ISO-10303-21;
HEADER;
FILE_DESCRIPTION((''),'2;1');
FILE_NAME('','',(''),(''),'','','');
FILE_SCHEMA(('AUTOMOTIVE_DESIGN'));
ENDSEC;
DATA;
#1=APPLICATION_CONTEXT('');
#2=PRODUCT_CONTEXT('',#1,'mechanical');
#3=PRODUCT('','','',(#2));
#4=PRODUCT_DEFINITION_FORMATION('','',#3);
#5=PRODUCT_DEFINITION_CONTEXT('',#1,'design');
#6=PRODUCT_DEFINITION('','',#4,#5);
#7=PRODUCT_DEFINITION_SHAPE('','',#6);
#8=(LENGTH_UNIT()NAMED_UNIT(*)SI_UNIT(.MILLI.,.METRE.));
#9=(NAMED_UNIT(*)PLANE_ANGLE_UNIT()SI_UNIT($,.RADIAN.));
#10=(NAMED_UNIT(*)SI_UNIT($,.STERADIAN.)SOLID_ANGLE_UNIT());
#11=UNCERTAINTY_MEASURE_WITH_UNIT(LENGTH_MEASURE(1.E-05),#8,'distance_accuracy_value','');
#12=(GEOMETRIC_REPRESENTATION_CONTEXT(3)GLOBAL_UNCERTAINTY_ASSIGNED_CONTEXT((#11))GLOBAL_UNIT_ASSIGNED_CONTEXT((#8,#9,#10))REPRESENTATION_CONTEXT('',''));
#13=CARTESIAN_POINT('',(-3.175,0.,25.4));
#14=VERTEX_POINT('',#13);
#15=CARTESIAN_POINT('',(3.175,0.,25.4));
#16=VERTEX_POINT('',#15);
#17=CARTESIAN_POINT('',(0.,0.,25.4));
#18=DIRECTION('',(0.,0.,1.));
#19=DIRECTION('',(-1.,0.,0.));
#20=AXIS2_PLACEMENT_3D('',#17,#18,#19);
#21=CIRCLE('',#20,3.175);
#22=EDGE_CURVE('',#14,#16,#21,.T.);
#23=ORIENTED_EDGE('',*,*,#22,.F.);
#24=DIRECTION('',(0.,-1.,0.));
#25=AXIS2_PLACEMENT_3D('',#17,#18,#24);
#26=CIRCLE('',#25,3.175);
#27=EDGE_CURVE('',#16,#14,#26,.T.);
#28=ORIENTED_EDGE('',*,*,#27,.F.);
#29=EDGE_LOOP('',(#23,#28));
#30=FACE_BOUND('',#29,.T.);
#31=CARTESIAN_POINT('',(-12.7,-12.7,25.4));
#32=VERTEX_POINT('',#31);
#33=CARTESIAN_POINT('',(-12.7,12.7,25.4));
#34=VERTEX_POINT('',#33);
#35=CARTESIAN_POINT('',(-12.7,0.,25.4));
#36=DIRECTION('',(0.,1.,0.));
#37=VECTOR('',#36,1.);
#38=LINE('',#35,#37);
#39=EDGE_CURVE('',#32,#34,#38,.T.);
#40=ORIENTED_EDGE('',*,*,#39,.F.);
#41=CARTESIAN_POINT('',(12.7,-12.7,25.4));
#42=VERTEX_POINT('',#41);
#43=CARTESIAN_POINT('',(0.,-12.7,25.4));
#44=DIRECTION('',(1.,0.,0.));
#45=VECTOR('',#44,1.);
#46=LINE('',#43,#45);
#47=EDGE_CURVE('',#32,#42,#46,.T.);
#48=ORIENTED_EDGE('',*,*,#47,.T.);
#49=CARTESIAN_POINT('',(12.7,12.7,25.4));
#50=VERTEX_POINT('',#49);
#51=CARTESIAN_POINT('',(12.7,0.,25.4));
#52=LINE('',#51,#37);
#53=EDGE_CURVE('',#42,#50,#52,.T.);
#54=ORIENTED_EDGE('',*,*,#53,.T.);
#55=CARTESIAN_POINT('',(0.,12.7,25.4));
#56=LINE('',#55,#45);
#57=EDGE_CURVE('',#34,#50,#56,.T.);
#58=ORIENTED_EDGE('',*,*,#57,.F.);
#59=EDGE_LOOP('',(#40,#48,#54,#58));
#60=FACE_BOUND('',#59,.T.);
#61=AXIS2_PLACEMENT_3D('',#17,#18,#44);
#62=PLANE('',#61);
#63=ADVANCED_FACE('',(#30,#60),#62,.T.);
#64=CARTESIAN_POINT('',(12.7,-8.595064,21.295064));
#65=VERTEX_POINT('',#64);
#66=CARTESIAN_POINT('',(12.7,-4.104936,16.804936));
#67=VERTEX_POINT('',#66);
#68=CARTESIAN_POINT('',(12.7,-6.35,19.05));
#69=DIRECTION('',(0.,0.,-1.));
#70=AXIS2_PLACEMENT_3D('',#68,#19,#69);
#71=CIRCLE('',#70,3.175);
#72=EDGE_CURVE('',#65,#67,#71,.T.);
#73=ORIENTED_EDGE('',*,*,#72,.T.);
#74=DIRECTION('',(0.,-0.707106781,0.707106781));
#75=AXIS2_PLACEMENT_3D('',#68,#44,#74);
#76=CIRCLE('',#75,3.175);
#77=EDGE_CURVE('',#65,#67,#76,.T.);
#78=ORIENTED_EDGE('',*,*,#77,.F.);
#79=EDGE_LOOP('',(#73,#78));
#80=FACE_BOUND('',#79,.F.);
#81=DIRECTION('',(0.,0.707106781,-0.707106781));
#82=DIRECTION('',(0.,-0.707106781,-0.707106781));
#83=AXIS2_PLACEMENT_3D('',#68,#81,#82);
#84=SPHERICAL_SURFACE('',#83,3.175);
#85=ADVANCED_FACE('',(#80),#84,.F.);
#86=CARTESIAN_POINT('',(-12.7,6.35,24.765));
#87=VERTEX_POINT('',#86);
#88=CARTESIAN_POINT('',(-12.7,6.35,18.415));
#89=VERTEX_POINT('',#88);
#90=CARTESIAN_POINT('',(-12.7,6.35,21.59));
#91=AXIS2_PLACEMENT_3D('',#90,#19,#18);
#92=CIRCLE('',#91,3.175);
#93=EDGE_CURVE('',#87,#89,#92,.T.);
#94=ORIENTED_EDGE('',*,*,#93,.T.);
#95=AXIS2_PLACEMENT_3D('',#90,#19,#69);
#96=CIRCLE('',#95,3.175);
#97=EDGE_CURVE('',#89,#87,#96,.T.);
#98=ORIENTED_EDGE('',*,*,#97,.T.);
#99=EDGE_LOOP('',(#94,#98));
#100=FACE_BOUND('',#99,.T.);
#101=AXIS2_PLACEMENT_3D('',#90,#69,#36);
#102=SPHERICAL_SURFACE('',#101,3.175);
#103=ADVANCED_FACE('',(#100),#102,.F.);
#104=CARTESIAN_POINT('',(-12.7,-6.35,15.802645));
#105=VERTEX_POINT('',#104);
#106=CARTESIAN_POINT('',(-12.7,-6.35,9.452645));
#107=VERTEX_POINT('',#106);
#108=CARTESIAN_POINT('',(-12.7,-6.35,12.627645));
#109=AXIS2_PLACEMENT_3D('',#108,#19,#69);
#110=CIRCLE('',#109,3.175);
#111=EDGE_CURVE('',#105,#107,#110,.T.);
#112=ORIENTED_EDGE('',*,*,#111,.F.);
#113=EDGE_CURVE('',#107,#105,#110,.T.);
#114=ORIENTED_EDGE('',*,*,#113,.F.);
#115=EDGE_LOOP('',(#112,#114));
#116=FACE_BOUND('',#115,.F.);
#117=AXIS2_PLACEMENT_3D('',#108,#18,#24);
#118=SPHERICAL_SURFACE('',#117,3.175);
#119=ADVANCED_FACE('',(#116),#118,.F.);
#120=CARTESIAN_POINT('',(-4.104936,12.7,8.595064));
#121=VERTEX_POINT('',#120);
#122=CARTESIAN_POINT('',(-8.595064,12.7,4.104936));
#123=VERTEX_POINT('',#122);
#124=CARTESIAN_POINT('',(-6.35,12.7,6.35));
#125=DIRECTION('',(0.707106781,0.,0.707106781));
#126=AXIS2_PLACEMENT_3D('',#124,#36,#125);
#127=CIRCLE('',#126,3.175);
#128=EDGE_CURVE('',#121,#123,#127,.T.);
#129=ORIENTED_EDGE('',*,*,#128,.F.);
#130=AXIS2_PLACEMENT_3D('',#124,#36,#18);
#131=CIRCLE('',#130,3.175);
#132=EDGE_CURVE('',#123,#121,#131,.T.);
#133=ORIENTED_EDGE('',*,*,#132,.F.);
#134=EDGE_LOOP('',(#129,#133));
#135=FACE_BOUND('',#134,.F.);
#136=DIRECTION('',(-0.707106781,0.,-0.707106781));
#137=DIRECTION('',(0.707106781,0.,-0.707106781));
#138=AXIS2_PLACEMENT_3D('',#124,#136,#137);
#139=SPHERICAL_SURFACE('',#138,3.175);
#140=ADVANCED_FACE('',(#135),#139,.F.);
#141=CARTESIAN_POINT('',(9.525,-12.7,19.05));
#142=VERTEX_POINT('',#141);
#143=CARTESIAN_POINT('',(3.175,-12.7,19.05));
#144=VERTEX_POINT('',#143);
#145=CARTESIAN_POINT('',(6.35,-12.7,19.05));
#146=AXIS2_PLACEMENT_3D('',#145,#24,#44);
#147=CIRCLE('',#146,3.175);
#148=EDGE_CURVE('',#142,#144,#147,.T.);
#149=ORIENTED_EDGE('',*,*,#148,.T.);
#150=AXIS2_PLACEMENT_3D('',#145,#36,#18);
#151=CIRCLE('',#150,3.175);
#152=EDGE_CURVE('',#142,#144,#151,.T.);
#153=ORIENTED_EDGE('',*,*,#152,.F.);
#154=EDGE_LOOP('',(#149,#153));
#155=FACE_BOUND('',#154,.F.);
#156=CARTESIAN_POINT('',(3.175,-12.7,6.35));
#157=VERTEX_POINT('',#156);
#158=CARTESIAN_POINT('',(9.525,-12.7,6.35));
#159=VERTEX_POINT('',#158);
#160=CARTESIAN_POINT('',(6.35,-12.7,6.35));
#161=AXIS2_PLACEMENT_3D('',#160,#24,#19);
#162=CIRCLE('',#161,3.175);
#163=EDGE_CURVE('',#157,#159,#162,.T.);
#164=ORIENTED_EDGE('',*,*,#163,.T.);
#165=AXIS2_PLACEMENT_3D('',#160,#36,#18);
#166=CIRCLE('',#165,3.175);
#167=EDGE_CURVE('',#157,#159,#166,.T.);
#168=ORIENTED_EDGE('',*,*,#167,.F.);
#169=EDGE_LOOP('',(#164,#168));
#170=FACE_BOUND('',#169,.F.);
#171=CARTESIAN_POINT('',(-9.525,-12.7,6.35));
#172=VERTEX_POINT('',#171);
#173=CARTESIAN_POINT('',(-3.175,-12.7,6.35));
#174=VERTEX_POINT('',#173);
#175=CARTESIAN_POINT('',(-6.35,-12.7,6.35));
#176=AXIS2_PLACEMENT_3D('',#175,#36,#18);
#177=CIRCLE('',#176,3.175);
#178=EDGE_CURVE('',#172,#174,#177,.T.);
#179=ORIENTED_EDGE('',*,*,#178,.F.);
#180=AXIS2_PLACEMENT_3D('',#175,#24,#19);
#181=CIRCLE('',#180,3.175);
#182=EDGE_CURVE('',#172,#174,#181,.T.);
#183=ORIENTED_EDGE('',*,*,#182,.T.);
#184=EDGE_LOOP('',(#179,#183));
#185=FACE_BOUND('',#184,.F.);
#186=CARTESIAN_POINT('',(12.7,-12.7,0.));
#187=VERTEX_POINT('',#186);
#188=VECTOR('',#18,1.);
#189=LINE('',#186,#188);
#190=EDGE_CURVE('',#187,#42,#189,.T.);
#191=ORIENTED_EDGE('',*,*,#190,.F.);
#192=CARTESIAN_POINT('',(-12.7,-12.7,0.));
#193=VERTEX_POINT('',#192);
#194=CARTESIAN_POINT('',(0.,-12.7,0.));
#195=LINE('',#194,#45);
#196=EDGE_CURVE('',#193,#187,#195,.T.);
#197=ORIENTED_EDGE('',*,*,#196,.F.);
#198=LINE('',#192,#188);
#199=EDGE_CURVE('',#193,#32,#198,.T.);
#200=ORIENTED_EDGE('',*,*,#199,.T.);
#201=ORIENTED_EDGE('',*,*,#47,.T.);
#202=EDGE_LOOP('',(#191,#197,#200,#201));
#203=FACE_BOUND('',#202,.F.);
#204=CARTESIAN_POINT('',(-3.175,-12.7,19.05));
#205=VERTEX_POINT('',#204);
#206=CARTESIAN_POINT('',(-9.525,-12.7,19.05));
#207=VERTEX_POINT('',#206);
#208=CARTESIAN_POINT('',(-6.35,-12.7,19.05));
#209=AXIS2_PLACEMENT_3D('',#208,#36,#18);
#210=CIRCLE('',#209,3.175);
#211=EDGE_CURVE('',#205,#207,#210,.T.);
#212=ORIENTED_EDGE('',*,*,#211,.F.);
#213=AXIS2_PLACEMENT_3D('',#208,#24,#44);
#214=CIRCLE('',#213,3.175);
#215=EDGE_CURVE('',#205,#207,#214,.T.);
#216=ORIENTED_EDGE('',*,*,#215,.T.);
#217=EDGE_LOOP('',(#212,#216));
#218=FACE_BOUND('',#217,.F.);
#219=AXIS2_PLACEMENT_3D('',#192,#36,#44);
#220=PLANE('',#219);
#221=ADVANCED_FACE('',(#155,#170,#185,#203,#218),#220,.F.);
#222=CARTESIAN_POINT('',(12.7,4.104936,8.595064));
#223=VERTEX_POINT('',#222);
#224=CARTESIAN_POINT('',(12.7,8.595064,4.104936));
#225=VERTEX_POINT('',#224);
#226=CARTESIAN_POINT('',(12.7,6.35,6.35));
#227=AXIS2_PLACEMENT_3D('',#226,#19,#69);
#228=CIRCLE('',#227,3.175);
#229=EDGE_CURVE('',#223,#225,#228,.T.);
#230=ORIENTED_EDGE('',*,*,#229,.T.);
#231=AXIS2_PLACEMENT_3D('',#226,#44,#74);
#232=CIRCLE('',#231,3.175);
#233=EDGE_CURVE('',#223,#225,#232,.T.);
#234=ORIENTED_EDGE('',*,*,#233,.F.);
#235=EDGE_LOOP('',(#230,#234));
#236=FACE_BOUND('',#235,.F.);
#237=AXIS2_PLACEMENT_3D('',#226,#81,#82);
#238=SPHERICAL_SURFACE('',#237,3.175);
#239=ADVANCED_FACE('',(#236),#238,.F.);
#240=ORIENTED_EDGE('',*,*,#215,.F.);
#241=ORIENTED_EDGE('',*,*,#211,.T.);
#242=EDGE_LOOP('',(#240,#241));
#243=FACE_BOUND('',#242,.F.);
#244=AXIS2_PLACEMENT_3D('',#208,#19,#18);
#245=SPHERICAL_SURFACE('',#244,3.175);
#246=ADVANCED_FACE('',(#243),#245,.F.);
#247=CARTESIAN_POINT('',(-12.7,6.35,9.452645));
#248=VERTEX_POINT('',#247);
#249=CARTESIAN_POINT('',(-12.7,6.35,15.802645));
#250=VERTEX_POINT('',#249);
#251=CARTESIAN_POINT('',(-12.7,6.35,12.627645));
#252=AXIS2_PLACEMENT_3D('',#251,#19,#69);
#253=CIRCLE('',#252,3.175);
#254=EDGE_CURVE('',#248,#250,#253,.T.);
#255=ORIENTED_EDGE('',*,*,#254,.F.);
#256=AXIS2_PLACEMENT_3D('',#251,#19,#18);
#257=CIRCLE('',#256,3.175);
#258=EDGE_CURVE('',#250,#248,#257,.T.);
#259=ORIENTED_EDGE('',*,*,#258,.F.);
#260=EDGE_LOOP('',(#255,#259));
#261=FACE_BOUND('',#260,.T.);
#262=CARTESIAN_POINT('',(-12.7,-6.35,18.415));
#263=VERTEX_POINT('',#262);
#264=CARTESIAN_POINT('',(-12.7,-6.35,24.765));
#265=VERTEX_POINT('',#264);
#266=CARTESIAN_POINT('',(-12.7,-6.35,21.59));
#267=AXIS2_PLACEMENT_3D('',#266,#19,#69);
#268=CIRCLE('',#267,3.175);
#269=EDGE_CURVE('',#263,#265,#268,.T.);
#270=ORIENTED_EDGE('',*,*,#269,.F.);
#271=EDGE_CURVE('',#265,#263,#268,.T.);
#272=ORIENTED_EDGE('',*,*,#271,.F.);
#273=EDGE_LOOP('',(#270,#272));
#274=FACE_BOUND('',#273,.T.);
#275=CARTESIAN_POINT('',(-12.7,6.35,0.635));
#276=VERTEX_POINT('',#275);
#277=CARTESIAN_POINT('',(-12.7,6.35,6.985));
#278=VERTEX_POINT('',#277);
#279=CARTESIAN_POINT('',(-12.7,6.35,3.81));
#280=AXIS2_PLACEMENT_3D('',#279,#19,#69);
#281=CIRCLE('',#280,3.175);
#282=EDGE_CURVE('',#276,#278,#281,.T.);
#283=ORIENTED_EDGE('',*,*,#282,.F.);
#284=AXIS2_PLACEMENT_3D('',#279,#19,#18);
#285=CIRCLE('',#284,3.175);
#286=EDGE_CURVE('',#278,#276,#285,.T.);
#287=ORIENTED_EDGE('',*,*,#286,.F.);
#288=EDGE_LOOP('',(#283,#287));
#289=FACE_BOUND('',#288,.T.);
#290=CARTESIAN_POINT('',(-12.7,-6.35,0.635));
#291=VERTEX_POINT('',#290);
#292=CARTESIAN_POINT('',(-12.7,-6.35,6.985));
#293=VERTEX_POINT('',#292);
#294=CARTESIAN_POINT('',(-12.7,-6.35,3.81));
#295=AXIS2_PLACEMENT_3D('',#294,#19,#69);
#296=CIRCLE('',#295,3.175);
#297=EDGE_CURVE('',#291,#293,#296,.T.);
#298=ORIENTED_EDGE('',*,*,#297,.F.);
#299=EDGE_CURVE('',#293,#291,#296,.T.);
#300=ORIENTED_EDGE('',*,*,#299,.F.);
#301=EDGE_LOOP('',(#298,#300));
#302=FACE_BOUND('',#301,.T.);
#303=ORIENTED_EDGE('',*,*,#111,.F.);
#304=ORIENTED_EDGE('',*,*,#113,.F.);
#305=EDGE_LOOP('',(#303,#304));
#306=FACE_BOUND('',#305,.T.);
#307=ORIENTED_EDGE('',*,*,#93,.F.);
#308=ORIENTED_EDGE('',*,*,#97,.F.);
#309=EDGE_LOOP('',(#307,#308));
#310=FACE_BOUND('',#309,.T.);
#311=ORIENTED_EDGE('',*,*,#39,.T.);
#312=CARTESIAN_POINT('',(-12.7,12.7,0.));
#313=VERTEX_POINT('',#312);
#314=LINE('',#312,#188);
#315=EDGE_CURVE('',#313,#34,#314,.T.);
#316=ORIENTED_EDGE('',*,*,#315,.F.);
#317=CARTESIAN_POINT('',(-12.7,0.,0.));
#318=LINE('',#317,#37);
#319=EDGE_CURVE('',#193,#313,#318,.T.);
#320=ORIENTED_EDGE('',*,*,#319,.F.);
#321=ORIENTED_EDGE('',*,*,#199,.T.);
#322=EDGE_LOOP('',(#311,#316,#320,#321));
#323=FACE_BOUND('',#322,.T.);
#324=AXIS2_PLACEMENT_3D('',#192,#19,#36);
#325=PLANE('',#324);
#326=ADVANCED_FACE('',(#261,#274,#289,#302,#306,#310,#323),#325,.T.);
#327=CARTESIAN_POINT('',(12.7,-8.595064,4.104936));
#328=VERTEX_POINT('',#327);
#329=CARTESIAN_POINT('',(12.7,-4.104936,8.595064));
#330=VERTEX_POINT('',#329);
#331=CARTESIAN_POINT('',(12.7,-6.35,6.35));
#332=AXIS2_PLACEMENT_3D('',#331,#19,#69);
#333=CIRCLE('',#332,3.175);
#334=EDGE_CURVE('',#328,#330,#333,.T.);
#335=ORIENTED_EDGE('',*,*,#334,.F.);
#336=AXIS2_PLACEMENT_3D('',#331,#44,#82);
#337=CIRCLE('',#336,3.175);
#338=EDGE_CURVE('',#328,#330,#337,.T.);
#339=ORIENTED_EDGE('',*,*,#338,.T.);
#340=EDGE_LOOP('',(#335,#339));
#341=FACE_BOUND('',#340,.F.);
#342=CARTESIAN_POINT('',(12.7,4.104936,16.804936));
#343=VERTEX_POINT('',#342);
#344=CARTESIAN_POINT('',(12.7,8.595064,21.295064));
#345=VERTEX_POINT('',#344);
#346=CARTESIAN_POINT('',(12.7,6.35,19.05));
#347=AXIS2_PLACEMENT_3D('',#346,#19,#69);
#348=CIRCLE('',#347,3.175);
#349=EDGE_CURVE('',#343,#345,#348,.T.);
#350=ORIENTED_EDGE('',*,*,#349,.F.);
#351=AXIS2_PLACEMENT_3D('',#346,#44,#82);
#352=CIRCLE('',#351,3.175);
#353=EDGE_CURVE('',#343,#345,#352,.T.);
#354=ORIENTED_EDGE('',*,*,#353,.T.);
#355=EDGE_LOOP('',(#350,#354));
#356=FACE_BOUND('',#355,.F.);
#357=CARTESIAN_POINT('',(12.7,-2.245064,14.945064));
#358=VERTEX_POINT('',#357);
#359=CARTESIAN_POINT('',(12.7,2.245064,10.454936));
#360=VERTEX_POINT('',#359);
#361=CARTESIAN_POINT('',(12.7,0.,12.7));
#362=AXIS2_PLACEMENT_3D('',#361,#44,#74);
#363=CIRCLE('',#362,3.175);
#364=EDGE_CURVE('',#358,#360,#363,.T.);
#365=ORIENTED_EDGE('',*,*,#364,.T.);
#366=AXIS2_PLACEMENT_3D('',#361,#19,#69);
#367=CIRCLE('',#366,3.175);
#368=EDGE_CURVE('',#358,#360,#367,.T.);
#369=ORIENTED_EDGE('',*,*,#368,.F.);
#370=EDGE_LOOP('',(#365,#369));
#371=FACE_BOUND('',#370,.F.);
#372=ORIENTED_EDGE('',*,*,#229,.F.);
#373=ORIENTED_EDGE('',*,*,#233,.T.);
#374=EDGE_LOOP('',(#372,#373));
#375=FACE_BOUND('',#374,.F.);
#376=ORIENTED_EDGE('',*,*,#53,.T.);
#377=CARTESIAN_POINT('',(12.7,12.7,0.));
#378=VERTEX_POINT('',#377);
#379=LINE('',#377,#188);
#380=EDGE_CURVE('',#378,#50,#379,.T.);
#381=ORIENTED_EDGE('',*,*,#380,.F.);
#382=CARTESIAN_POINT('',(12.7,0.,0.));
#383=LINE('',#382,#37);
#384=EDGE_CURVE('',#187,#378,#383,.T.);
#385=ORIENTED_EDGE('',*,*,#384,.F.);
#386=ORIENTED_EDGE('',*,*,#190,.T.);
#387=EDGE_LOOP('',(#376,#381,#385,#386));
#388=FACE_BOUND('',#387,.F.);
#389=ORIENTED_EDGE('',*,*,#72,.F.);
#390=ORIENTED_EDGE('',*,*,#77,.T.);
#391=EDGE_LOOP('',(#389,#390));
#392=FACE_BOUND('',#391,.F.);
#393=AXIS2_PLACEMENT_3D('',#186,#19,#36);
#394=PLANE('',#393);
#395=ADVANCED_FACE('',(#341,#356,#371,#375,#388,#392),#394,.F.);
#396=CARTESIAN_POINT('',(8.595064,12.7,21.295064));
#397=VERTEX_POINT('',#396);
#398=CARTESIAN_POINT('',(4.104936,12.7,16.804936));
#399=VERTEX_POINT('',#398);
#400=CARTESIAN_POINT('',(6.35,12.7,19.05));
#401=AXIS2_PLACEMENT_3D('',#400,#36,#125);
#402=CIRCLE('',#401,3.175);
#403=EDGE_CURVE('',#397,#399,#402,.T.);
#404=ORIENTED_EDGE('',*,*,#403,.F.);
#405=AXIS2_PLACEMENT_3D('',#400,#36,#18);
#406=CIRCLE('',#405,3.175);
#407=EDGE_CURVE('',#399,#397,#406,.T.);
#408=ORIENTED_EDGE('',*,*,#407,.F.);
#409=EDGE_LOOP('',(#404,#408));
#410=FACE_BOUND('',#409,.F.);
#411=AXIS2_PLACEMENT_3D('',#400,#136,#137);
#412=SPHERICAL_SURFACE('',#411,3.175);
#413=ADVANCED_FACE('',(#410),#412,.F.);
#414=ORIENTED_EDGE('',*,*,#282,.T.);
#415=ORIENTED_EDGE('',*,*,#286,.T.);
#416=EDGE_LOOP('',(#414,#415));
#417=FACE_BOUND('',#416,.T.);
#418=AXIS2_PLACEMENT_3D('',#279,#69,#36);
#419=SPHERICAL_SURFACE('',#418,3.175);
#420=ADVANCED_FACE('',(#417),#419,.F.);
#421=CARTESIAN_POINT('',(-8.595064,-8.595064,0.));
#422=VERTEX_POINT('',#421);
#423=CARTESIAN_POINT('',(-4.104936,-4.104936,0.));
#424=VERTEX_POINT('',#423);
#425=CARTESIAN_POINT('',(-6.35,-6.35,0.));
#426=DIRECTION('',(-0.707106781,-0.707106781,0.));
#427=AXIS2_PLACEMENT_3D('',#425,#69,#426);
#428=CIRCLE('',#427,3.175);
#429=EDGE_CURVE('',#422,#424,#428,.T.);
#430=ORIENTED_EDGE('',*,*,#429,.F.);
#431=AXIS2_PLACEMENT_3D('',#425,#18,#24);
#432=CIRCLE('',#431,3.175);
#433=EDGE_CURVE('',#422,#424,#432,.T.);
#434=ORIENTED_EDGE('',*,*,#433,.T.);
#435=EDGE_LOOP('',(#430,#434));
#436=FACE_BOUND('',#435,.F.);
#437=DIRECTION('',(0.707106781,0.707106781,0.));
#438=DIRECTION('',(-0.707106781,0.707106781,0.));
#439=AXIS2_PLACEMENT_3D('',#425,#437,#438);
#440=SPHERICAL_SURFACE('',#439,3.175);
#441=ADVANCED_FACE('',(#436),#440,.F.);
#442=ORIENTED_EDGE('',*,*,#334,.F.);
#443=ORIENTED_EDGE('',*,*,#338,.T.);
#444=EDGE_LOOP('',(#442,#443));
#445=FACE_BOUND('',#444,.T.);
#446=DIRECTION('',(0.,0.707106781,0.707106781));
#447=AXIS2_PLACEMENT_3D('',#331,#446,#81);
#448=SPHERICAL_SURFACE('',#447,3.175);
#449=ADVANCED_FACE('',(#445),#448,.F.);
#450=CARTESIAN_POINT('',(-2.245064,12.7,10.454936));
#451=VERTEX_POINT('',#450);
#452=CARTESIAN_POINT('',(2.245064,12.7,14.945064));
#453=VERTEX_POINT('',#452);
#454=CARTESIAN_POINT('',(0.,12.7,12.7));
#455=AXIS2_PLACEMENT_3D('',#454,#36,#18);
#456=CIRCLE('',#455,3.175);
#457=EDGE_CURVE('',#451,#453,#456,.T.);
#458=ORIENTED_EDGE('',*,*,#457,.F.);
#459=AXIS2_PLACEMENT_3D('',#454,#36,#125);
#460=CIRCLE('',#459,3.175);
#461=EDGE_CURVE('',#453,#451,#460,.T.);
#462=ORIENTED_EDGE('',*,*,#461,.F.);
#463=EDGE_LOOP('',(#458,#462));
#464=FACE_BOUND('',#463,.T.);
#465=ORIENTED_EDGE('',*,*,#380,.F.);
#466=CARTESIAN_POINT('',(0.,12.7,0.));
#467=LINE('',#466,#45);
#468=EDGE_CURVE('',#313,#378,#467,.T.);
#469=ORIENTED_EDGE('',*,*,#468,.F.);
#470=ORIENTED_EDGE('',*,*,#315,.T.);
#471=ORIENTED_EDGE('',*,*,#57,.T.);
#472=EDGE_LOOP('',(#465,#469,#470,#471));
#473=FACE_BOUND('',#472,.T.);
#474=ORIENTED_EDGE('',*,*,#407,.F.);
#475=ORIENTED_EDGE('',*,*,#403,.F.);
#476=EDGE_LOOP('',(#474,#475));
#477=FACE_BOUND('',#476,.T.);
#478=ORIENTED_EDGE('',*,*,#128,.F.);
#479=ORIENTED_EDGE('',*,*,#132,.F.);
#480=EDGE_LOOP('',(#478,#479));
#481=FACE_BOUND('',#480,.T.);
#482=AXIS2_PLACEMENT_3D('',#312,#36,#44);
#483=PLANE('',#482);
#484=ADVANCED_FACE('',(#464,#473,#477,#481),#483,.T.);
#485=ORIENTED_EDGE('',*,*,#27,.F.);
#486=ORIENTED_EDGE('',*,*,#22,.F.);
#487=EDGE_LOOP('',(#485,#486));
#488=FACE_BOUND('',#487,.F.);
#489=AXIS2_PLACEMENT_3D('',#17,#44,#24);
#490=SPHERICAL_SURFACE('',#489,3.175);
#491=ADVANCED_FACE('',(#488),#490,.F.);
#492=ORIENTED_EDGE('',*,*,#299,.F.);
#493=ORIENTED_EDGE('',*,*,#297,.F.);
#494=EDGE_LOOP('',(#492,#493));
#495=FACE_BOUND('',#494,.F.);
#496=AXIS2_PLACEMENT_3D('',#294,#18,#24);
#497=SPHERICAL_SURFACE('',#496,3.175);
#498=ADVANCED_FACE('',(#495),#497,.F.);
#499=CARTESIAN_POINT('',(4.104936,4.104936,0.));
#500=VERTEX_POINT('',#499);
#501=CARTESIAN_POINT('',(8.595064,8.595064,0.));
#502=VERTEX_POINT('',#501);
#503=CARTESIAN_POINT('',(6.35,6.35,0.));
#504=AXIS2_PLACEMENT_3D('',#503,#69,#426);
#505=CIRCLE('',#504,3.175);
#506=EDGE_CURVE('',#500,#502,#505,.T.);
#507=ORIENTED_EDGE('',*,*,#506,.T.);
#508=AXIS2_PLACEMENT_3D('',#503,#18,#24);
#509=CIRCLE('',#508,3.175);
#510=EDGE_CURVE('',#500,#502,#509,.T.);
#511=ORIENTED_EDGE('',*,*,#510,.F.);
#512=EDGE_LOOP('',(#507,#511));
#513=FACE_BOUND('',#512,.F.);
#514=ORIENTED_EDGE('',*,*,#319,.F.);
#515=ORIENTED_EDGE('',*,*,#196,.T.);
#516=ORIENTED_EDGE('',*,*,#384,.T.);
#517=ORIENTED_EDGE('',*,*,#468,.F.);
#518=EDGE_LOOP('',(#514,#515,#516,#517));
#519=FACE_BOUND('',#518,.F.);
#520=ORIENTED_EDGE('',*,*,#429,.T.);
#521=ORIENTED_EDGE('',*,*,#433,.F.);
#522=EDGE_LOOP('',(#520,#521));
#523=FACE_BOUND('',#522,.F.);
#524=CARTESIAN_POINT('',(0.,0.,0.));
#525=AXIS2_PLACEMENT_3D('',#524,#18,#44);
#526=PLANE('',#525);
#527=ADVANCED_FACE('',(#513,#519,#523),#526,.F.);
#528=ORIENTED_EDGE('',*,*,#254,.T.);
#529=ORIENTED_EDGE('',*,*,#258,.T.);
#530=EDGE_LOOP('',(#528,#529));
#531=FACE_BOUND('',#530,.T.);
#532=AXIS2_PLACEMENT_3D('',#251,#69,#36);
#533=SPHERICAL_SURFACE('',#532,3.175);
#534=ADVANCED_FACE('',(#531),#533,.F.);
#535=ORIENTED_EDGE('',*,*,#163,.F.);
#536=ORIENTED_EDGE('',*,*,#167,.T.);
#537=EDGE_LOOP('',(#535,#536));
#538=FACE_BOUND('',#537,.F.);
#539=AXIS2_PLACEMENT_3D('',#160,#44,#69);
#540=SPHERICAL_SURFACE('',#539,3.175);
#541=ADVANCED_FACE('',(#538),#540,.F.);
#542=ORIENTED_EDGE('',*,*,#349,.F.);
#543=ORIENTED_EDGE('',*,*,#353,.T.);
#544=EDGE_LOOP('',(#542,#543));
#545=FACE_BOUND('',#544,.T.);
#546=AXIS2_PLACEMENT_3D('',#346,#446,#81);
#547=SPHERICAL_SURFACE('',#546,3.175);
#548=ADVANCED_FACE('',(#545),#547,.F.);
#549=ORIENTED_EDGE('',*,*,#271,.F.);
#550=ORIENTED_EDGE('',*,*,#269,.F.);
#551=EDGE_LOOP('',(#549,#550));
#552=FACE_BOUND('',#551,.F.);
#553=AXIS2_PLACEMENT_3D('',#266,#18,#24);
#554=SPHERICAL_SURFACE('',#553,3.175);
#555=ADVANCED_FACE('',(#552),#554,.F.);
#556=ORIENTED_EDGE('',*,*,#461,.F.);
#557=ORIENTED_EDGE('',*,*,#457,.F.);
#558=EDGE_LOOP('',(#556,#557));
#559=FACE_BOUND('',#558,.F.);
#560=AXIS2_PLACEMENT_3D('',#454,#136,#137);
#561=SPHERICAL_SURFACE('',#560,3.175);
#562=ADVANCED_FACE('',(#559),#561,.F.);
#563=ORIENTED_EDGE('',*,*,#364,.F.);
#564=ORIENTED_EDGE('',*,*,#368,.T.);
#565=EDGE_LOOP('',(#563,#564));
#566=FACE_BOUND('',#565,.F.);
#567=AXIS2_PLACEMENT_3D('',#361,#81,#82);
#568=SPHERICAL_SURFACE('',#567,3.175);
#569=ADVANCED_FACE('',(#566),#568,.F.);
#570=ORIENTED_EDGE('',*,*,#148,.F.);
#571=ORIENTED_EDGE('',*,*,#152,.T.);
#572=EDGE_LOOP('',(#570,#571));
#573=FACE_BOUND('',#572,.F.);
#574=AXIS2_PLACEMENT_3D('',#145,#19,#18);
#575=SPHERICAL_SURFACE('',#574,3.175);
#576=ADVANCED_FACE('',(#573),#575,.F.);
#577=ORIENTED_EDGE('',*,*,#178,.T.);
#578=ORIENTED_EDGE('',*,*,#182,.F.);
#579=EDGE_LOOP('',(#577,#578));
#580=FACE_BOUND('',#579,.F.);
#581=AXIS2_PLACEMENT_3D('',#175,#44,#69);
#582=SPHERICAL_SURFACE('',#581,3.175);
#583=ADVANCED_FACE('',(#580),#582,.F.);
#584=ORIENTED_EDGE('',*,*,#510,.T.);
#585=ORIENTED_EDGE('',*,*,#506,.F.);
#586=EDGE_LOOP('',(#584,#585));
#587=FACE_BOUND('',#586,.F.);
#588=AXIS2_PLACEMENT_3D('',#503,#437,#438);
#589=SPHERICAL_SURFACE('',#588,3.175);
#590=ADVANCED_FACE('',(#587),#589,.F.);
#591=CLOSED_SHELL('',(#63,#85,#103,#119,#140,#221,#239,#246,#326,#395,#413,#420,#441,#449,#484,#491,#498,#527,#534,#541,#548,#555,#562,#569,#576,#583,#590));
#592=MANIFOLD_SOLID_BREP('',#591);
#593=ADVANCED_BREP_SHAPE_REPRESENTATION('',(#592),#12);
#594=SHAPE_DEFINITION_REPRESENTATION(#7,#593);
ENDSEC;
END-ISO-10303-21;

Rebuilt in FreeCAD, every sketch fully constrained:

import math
import FreeCAD as App
import Part
import Sketcher
Q = App.Units.Quantity


def add_polygon(sketch, points):
    """Adds a closed chain of lines whose ends are joined by coincident constraints."""
    first, n = sketch.GeometryCount, len(points)
    for a, b in zip(points, points[1:] + points[:1]):
        sketch.addGeometry(Part.LineSegment(App.Vector(*a, 0), App.Vector(*b, 0)), False)
    for i in range(n):
        sketch.addConstraint(Sketcher.Constraint("Coincident", first + i, 2, first + (i + 1) % n, 1))

doc = App.newDocument("Part")
params = doc.addObject("Spreadsheet::Sheet", "Params")
for row, (alias, value) in enumerate([
    ("sketch1_width", "1 in"),
    ("pad1_length", "1 in"),
    ("sketch2_radius", "0.125 in"),
    ("groove_angle", "360 deg"),
    ("sketch3_radius", "0.125 in"),
    ("groove2_angle", "360 deg"),
    ("sketch4_radius", "0.125 in"),
    ("groove3_angle", "360 deg"),
    ("sketch5_radius", "0.125 in"),
    ("sketch5_width", "0.75 in"),
    ("groove4_angle", "360 deg"),
    ("sketch6_radius", "0.125 in"),
    ("sketch6_width", "0.75 in"),
    ("groove5_angle", "360 deg"),
    ("sketch7_radius", "0.125 in"),
    ("groove6_angle", "360 deg"),
    ("sketch8_radius", "0.125 in"),
    ("groove7_angle", "360 deg"),
    ("sketch9_radius", "0.125 in"),
    ("sketch9_height", "0.95 in"),
    ("groove8_angle", "360 deg"),
    ("sketch10_radius", "0.125 in"),
    ("sketch10_height", "0.95 in"),
    ("groove9_angle", "360 deg"),
], start=1):
    params.set(f"A{row}", alias)
    params.set(f"B{row}", "=" + value)
    params.setAlias(f"B{row}", alias)

body = doc.addObject("PartDesign::Body", "Body")

# Sketch on XY plane
sketch1 = body.newObject("Sketcher::SketchObject", "Sketch")
sketch1.AttachmentSupport = (doc.getObject("XY_Plane"), [""])
sketch1.MapMode = "FlatFace"
add_polygon(sketch1, [(-13, 13), (-13, -13), (13, -13), (13, 13)])  # lines 0-3
sketch1.addConstraint(Sketcher.Constraint("Vertical", 0))
sketch1.addConstraint(Sketcher.Constraint("Horizontal", 1))
sketch1.addConstraint(Sketcher.Constraint("Vertical", 2))
sketch1.addConstraint(Sketcher.Constraint("Horizontal", 3))
sketch1.addConstraint(Sketcher.Constraint("Symmetric", 0, 2, 2, 2, -1, 1))
sketch1.addConstraint(Sketcher.Constraint("Equal", 3, 0))
sketch1.addConstraint(Sketcher.Constraint("DistanceX", 1, 1, 1, 2, Q("1 in")))
sketch1.setExpression("Constraints[10]", "Params.sketch1_width")
pad1 = body.newObject("PartDesign::Pad", "Pad")
pad1.Profile = sketch1
pad1.setExpression("Length", "Params.pad1_length")

# Sketch on XY plane
sketch2 = body.newObject("Sketcher::SketchObject", "Sketch001")
sketch2.AttachmentSupport = (doc.getObject("XY_Plane"), [""])
sketch2.MapMode = "FlatFace"
sketch2.AttachmentOffset = App.Placement(App.Vector(0, 0, 1 * 25.4), App.Rotation())
sketch2.addGeometry(Part.LineSegment(App.Vector(3.2, 0, 0), App.Vector(-3.2, 0, 0)), False)
sketch2.addGeometry(Part.ArcOfCircle(Part.Circle(App.Vector(0, 0, 0), App.Vector(0, 0, 1), 3.2), math.radians(180), math.radians(360)), False)
sketch2.addConstraint(Sketcher.Constraint("Coincident", 0, 1, 1, 2))
sketch2.addConstraint(Sketcher.Constraint("Coincident", 1, 1, 0, 2))
sketch2.addConstraint(Sketcher.Constraint("Horizontal", 0))
sketch2.addConstraint(Sketcher.Constraint("Coincident", 1, 3, -1, 1))
sketch2.addConstraint(Sketcher.Constraint("PointOnObject", 0, 1, -1))
sketch2.addConstraint(Sketcher.Constraint("Radius", 1, Q("0.125 in")))
sketch2.setExpression("Constraints[5]", "Params.sketch2_radius")
groove = body.newObject("PartDesign::Groove", "Groove")
groove.Profile = sketch2
groove.ReferenceAxis = (sketch2, ["H_Axis"])
groove.setExpression("Angle", "Params.groove_angle")

# Sketch on XY plane
sketch3 = body.newObject("Sketcher::SketchObject", "Sketch002")
sketch3.AttachmentSupport = (doc.getObject("XY_Plane"), [""])
sketch3.MapMode = "FlatFace"
sketch3.addGeometry(Part.LineSegment(App.Vector(-4.1, -4.1, 0), App.Vector(-8.6, -8.6, 0)), False)
sketch3.addGeometry(Part.ArcOfCircle(Part.Circle(App.Vector(-6.3, -6.3, 0), App.Vector(0, 0, 1), 3.2), math.radians(45), math.radians(225)), False)
sketch3.addGeometry(Part.LineSegment(App.Vector(8.6, 8.6, 0), App.Vector(4.1, 4.1, 0)), False)
sketch3.addGeometry(Part.ArcOfCircle(Part.Circle(App.Vector(6.3, 6.3, 0), App.Vector(0, 0, 1), 3.2), math.radians(45), math.radians(225)), False)
sketch3.addGeometry(Part.LineSegment(App.Vector(-8.6, -8.6, 0), App.Vector(8.6, 8.6, 0)), True)  # axis
sketch3.addConstraint(Sketcher.Constraint("Coincident", 0, 1, 1, 1))
sketch3.addConstraint(Sketcher.Constraint("Coincident", 1, 2, 0, 2))
sketch3.addConstraint(Sketcher.Constraint("Coincident", 2, 1, 3, 1))
sketch3.addConstraint(Sketcher.Constraint("Coincident", 3, 2, 2, 2))
sketch3.addConstraint(Sketcher.Constraint("Coincident", 4, 1, 1, 2))
sketch3.addConstraint(Sketcher.Constraint("Coincident", 4, 2, 2, 1))
sketch3.addConstraint(Sketcher.Constraint("Equal", 1, 3))
sketch3.addConstraint(Sketcher.Constraint("Symmetric", 1, 3, 3, 3, -1, 1))
sketch3.addConstraint(Sketcher.Constraint("Parallel", 0, 2))
sketch3.addConstraint(Sketcher.Constraint("Parallel", 2, 4))
sketch3.addConstraint(Sketcher.Constraint("Angle", 0, Q("-135 deg")))
sketch3.addConstraint(Sketcher.Constraint("Radius", 1, Q("0.125 in")))
sketch3.addConstraint(Sketcher.Constraint("DistanceX", 1, 3, 3, 3, Q("0.5 in")))
sketch3.addConstraint(Sketcher.Constraint("DistanceY", 1, 3, 3, 3, Q("0.5 in")))
sketch3.addConstraint(Sketcher.Constraint("DistanceX", 0, 1, -1, 1, Q("4.104936 mm")))
sketch3.setExpression("Constraints[11]", "Params.sketch3_radius")
groove2 = body.newObject("PartDesign::Groove", "Groove001")
groove2.Profile = sketch3
groove2.ReferenceAxis = (sketch3, ["Axis0"])
groove2.setExpression("Angle", "Params.groove2_angle")

# Sketch on XZ plane
sketch4 = body.newObject("Sketcher::SketchObject", "Sketch003")
sketch4.AttachmentSupport = (doc.getObject("XZ_Plane"), [""])
sketch4.MapMode = "FlatFace"
sketch4.AttachmentOffset = App.Placement(App.Vector(0, 0, -0.5 * 25.4), App.Rotation())
sketch4.addGeometry(Part.LineSegment(App.Vector(4.1, 16.8, 0), App.Vector(8.6, 21.3, 0)), False)
sketch4.addGeometry(Part.ArcOfCircle(Part.Circle(App.Vector(6.3, 19.1, 0), App.Vector(0, 0, 1), 3.2), math.radians(-135), math.radians(45)), False)
sketch4.addGeometry(Part.LineSegment(App.Vector(-2.2, 10.5, 0), App.Vector(2.2, 14.9, 0)), False)
sketch4.addGeometry(Part.ArcOfCircle(Part.Circle(App.Vector(0, 12.7, 0), App.Vector(0, 0, 1), 3.2), math.radians(-135), math.radians(45)), False)
sketch4.addGeometry(Part.LineSegment(App.Vector(-8.6, 4.1, 0), App.Vector(-4.1, 8.6, 0)), False)
sketch4.addGeometry(Part.ArcOfCircle(Part.Circle(App.Vector(-6.3, 6.3, 0), App.Vector(0, 0, 1), 3.2), math.radians(-135), math.radians(45)), False)
sketch4.addGeometry(Part.LineSegment(App.Vector(8.6, 21.3, 0), App.Vector(-8.6, 4.1, 0)), True)  # axis
sketch4.addConstraint(Sketcher.Constraint("Coincident", 0, 1, 1, 1))
sketch4.addConstraint(Sketcher.Constraint("Coincident", 1, 2, 0, 2))
sketch4.addConstraint(Sketcher.Constraint("Coincident", 2, 1, 3, 1))
sketch4.addConstraint(Sketcher.Constraint("Coincident", 3, 2, 2, 2))
sketch4.addConstraint(Sketcher.Constraint("Coincident", 4, 1, 5, 1))
sketch4.addConstraint(Sketcher.Constraint("Coincident", 5, 2, 4, 2))
sketch4.addConstraint(Sketcher.Constraint("Coincident", 6, 1, 1, 2))
sketch4.addConstraint(Sketcher.Constraint("Coincident", 6, 2, 4, 1))
sketch4.addConstraint(Sketcher.Constraint("Equal", 1, 3))
sketch4.addConstraint(Sketcher.Constraint("Equal", 3, 5))
sketch4.addConstraint(Sketcher.Constraint("PointOnObject", 3, 3, -2))
sketch4.addConstraint(Sketcher.Constraint("Parallel", 0, 2))
sketch4.addConstraint(Sketcher.Constraint("Parallel", 2, 4))
sketch4.addConstraint(Sketcher.Constraint("Parallel", 4, 6))
sketch4.addConstraint(Sketcher.Constraint("Angle", 0, Q("45 deg")))
sketch4.addConstraint(Sketcher.Constraint("Radius", 1, Q("0.125 in")))
sketch4.addConstraint(Sketcher.Constraint("DistanceY", -1, 1, 3, 3, Q("0.5 in")))
sketch4.addConstraint(Sketcher.Constraint("DistanceX", 5, 3, 1, 3, Q("0.5 in")))
sketch4.addConstraint(Sketcher.Constraint("DistanceY", 5, 3, 1, 3, Q("0.5 in")))
sketch4.addConstraint(Sketcher.Constraint("DistanceX", -1, 1, 1, 3, Q("0.25 in")))
sketch4.addConstraint(Sketcher.Constraint("DistanceY", -1, 1, 1, 3, Q("0.75 in")))
sketch4.addConstraint(Sketcher.Constraint("DistanceX", 2, 1, 0, 1, Q("0.25 in")))
sketch4.addConstraint(Sketcher.Constraint("DistanceX", -1, 1, 0, 1, Q("4.104936 mm")))
sketch4.setExpression("Constraints[15]", "Params.sketch4_radius")
groove3 = body.newObject("PartDesign::Groove", "Groove002")
groove3.Profile = sketch4
groove3.ReferenceAxis = (sketch4, ["Axis0"])
groove3.setExpression("Angle", "Params.groove3_angle")

# Sketch on XZ plane
sketch5 = body.newObject("Sketcher::SketchObject", "Sketch004")
sketch5.AttachmentSupport = (doc.getObject("XZ_Plane"), [""])
sketch5.MapMode = "FlatFace"
sketch5.AttachmentOffset = App.Placement(App.Vector(0, 0, 0.5 * 25.4), App.Rotation())
sketch5.addGeometry(Part.ArcOfCircle(Part.Circle(App.Vector(6.3, 6.3, 0), App.Vector(0, 0, 1), 3.2), math.radians(180), math.radians(360)), False)
sketch5.addGeometry(Part.LineSegment(App.Vector(9.5, 6.3, 0), App.Vector(3.2, 6.3, 0)), False)
sketch5.addGeometry(Part.LineSegment(App.Vector(-3.2, 6.3, 0), App.Vector(-9.5, 6.3, 0)), False)
sketch5.addGeometry(Part.ArcOfCircle(Part.Circle(App.Vector(-6.3, 6.3, 0), App.Vector(0, 0, 1), 3.2), math.radians(180), math.radians(360)), False)
sketch5.addGeometry(Part.LineSegment(App.Vector(-9.5, 6.3, 0), App.Vector(9.5, 6.3, 0)), True)  # axis
sketch5.addConstraint(Sketcher.Constraint("Coincident", 0, 1, 1, 2))
sketch5.addConstraint(Sketcher.Constraint("Coincident", 1, 1, 0, 2))
sketch5.addConstraint(Sketcher.Constraint("Coincident", 2, 1, 3, 2))
sketch5.addConstraint(Sketcher.Constraint("Coincident", 3, 1, 2, 2))
sketch5.addConstraint(Sketcher.Constraint("Horizontal", 1))
sketch5.addConstraint(Sketcher.Constraint("Horizontal", 2))
sketch5.addConstraint(Sketcher.Constraint("Horizontal", 4))
sketch5.addConstraint(Sketcher.Constraint("Coincident", 4, 1, 3, 1))
sketch5.addConstraint(Sketcher.Constraint("Coincident", 4, 2, 1, 1))
sketch5.addConstraint(Sketcher.Constraint("Equal", 0, 3))
sketch5.addConstraint(Sketcher.Constraint("Symmetric", 0, 3, 3, 3, -2))
sketch5.addConstraint(Sketcher.Constraint("Horizontal", 3, 3, 0, 1))
sketch5.addConstraint(Sketcher.Constraint("Radius", 0, Q("0.125 in")))
sketch5.addConstraint(Sketcher.Constraint("DistanceX", 4, 1, 4, 2, Q("0.75 in")))
sketch5.addConstraint(Sketcher.Constraint("DistanceY", -1, 1, 0, 3, Q("0.25 in")))
sketch5.setExpression("Constraints[12]", "Params.sketch5_radius")
sketch5.setExpression("Constraints[13]", "Params.sketch5_width")
groove4 = body.newObject("PartDesign::Groove", "Groove003")
groove4.Profile = sketch5
groove4.ReferenceAxis = (sketch5, ["Axis0"])
groove4.setExpression("Angle", "Params.groove4_angle")

# Sketch on XZ plane
sketch6 = body.newObject("Sketcher::SketchObject", "Sketch005")
sketch6.AttachmentSupport = (doc.getObject("XZ_Plane"), [""])
sketch6.MapMode = "FlatFace"
sketch6.AttachmentOffset = App.Placement(App.Vector(0, 0, 0.5 * 25.4), App.Rotation())
sketch6.addGeometry(Part.LineSegment(App.Vector(-9.5, 19.1, 0), App.Vector(-3.2, 19.1, 0)), False)
sketch6.addGeometry(Part.ArcOfCircle(Part.Circle(App.Vector(-6.3, 19.1, 0), App.Vector(0, 0, 1), 3.2), math.radians(0), math.radians(180)), False)
sketch6.addGeometry(Part.ArcOfCircle(Part.Circle(App.Vector(6.3, 19.1, 0), App.Vector(0, 0, 1), 3.2), math.radians(0), math.radians(180)), False)
sketch6.addGeometry(Part.LineSegment(App.Vector(3.2, 19.1, 0), App.Vector(9.5, 19.1, 0)), False)
sketch6.addGeometry(Part.LineSegment(App.Vector(9.5, 19.1, 0), App.Vector(-9.5, 19.1, 0)), True)  # axis
sketch6.addConstraint(Sketcher.Constraint("Coincident", 0, 1, 1, 2))
sketch6.addConstraint(Sketcher.Constraint("Coincident", 1, 1, 0, 2))
sketch6.addConstraint(Sketcher.Constraint("Coincident", 2, 1, 3, 2))
sketch6.addConstraint(Sketcher.Constraint("Coincident", 3, 1, 2, 2))
sketch6.addConstraint(Sketcher.Constraint("Horizontal", 0))
sketch6.addConstraint(Sketcher.Constraint("Horizontal", 3))
sketch6.addConstraint(Sketcher.Constraint("Horizontal", 4))
sketch6.addConstraint(Sketcher.Constraint("Coincident", 4, 1, 2, 1))
sketch6.addConstraint(Sketcher.Constraint("Coincident", 4, 2, 0, 1))
sketch6.addConstraint(Sketcher.Constraint("Equal", 1, 2))
sketch6.addConstraint(Sketcher.Constraint("Symmetric", 1, 3, 2, 3, -2))
sketch6.addConstraint(Sketcher.Constraint("Horizontal", 2, 3, 0, 1))
sketch6.addConstraint(Sketcher.Constraint("Radius", 1, Q("0.125 in")))
sketch6.addConstraint(Sketcher.Constraint("DistanceX", 4, 2, 4, 1, Q("0.75 in")))
sketch6.addConstraint(Sketcher.Constraint("DistanceY", -1, 1, 1, 3, Q("0.75 in")))
sketch6.setExpression("Constraints[12]", "Params.sketch6_radius")
sketch6.setExpression("Constraints[13]", "Params.sketch6_width")
groove5 = body.newObject("PartDesign::Groove", "Groove004")
groove5.Profile = sketch6
groove5.ReferenceAxis = (sketch6, ["Axis0"])
groove5.setExpression("Angle", "Params.groove5_angle")

# Sketch on YZ plane
sketch7 = body.newObject("Sketcher::SketchObject", "Sketch006")
sketch7.AttachmentSupport = (doc.getObject("YZ_Plane"), [""])
sketch7.MapMode = "FlatFace"
sketch7.AttachmentOffset = App.Placement(App.Vector(0, 0, 0.5 * 25.4), App.Rotation())
sketch7.addGeometry(Part.LineSegment(App.Vector(-4.1, 16.8, 0), App.Vector(-8.6, 21.3, 0)), False)
sketch7.addGeometry(Part.ArcOfCircle(Part.Circle(App.Vector(-6.3, 19.1, 0), App.Vector(0, 0, 1), 3.2), math.radians(135), math.radians(315)), False)
sketch7.addGeometry(Part.LineSegment(App.Vector(2.2, 10.5, 0), App.Vector(-2.2, 14.9, 0)), False)
sketch7.addGeometry(Part.ArcOfCircle(Part.Circle(App.Vector(0, 12.7, 0), App.Vector(0, 0, 1), 3.2), math.radians(135), math.radians(315)), False)
sketch7.addGeometry(Part.LineSegment(App.Vector(8.6, 4.1, 0), App.Vector(4.1, 8.6, 0)), False)
sketch7.addGeometry(Part.ArcOfCircle(Part.Circle(App.Vector(6.3, 6.3, 0), App.Vector(0, 0, 1), 3.2), math.radians(135), math.radians(315)), False)
sketch7.addGeometry(Part.LineSegment(App.Vector(-8.6, 21.3, 0), App.Vector(8.6, 4.1, 0)), True)  # axis
sketch7.addConstraint(Sketcher.Constraint("Coincident", 0, 1, 1, 2))
sketch7.addConstraint(Sketcher.Constraint("Coincident", 1, 1, 0, 2))
sketch7.addConstraint(Sketcher.Constraint("Coincident", 2, 1, 3, 2))
sketch7.addConstraint(Sketcher.Constraint("Coincident", 3, 1, 2, 2))
sketch7.addConstraint(Sketcher.Constraint("Coincident", 4, 1, 5, 2))
sketch7.addConstraint(Sketcher.Constraint("Coincident", 5, 1, 4, 2))
sketch7.addConstraint(Sketcher.Constraint("Coincident", 6, 1, 1, 1))
sketch7.addConstraint(Sketcher.Constraint("Coincident", 6, 2, 4, 1))
sketch7.addConstraint(Sketcher.Constraint("Equal", 1, 3))
sketch7.addConstraint(Sketcher.Constraint("Equal", 3, 5))
sketch7.addConstraint(Sketcher.Constraint("PointOnObject", 3, 3, -2))
sketch7.addConstraint(Sketcher.Constraint("Parallel", 0, 2))
sketch7.addConstraint(Sketcher.Constraint("Parallel", 2, 4))
sketch7.addConstraint(Sketcher.Constraint("Parallel", 4, 6))
sketch7.addConstraint(Sketcher.Constraint("Angle", 0, Q("135 deg")))
sketch7.addConstraint(Sketcher.Constraint("Radius", 1, Q("0.125 in")))
sketch7.addConstraint(Sketcher.Constraint("DistanceY", -1, 1, 3, 3, Q("0.5 in")))
sketch7.addConstraint(Sketcher.Constraint("DistanceX", 1, 3, 5, 3, Q("0.5 in")))
sketch7.addConstraint(Sketcher.Constraint("DistanceY", 5, 3, 1, 3, Q("0.5 in")))
sketch7.addConstraint(Sketcher.Constraint("DistanceX", 1, 3, -1, 1, Q("0.25 in")))
sketch7.addConstraint(Sketcher.Constraint("DistanceY", -1, 1, 1, 3, Q("0.75 in")))
sketch7.addConstraint(Sketcher.Constraint("DistanceX", 0, 1, 2, 1, Q("0.25 in")))
sketch7.addConstraint(Sketcher.Constraint("DistanceX", 0, 1, -1, 1, Q("4.104936 mm")))
sketch7.setExpression("Constraints[15]", "Params.sketch7_radius")
groove6 = body.newObject("PartDesign::Groove", "Groove005")
groove6.Profile = sketch7
groove6.ReferenceAxis = (sketch7, ["Axis0"])
groove6.setExpression("Angle", "Params.groove6_angle")

# Sketch on YZ plane
sketch8 = body.newObject("Sketcher::SketchObject", "Sketch007")
sketch8.AttachmentSupport = (doc.getObject("YZ_Plane"), [""])
sketch8.MapMode = "FlatFace"
sketch8.AttachmentOffset = App.Placement(App.Vector(0, 0, 0.5 * 25.4), App.Rotation())
sketch8.addGeometry(Part.LineSegment(App.Vector(-4.1, 8.6, 0), App.Vector(-8.6, 4.1, 0)), False)
sketch8.addGeometry(Part.ArcOfCircle(Part.Circle(App.Vector(-6.3, 6.3, 0), App.Vector(0, 0, 1), 3.2), math.radians(-135), math.radians(45)), False)
sketch8.addGeometry(Part.LineSegment(App.Vector(8.6, 21.3, 0), App.Vector(4.1, 16.8, 0)), False)
sketch8.addGeometry(Part.ArcOfCircle(Part.Circle(App.Vector(6.3, 19.1, 0), App.Vector(0, 0, 1), 3.2), math.radians(-135), math.radians(45)), False)
sketch8.addGeometry(Part.LineSegment(App.Vector(8.6, 21.3, 0), App.Vector(-8.6, 4.1, 0)), True)  # axis
sketch8.addConstraint(Sketcher.Constraint("Coincident", 0, 1, 1, 2))
sketch8.addConstraint(Sketcher.Constraint("Coincident", 1, 1, 0, 2))
sketch8.addConstraint(Sketcher.Constraint("Coincident", 2, 1, 3, 2))
sketch8.addConstraint(Sketcher.Constraint("Coincident", 3, 1, 2, 2))
sketch8.addConstraint(Sketcher.Constraint("Coincident", 4, 1, 2, 1))
sketch8.addConstraint(Sketcher.Constraint("Coincident", 4, 2, 1, 1))
sketch8.addConstraint(Sketcher.Constraint("Equal", 1, 3))
sketch8.addConstraint(Sketcher.Constraint("Parallel", 0, 2))
sketch8.addConstraint(Sketcher.Constraint("Parallel", 2, 4))
sketch8.addConstraint(Sketcher.Constraint("Angle", 0, Q("-135 deg")))
sketch8.addConstraint(Sketcher.Constraint("Radius", 1, Q("0.125 in")))
sketch8.addConstraint(Sketcher.Constraint("DistanceX", 1, 3, 3, 3, Q("0.5 in")))
sketch8.addConstraint(Sketcher.Constraint("DistanceY", 1, 3, 3, 3, Q("0.5 in")))
sketch8.addConstraint(Sketcher.Constraint("DistanceX", 1, 3, -1, 1, Q("0.25 in")))
sketch8.addConstraint(Sketcher.Constraint("DistanceY", -1, 1, 1, 3, Q("0.25 in")))
sketch8.addConstraint(Sketcher.Constraint("DistanceX", 0, 1, -1, 1, Q("4.104936 mm")))
sketch8.setExpression("Constraints[10]", "Params.sketch8_radius")
groove7 = body.newObject("PartDesign::Groove", "Groove006")
groove7.Profile = sketch8
groove7.ReferenceAxis = (sketch8, ["Axis0"])
groove7.setExpression("Angle", "Params.groove7_angle")

# Sketch on YZ plane
sketch9 = body.newObject("Sketcher::SketchObject", "Sketch008")
sketch9.AttachmentSupport = (doc.getObject("YZ_Plane"), [""])
sketch9.MapMode = "FlatFace"
sketch9.AttachmentOffset = App.Placement(App.Vector(0, 0, -0.5 * 25.4), App.Rotation())
sketch9.addGeometry(Part.LineSegment(App.Vector(-6.3, 7, 0), App.Vector(-6.3, 0.6, 0)), False)
sketch9.addGeometry(Part.ArcOfCircle(Part.Circle(App.Vector(-6.3, 3.8, 0), App.Vector(0, 0, 1), 3.2), math.radians(90), math.radians(270)), False)
sketch9.addGeometry(Part.LineSegment(App.Vector(-6.3, 15.8, 0), App.Vector(-6.3, 9.5, 0)), False)
sketch9.addGeometry(Part.ArcOfCircle(Part.Circle(App.Vector(-6.3, 12.6, 0), App.Vector(0, 0, 1), 3.2), math.radians(90), math.radians(270)), False)
sketch9.addGeometry(Part.LineSegment(App.Vector(-6.3, 24.8, 0), App.Vector(-6.3, 18.4, 0)), False)
sketch9.addGeometry(Part.ArcOfCircle(Part.Circle(App.Vector(-6.3, 21.6, 0), App.Vector(0, 0, 1), 3.2), math.radians(90), math.radians(270)), False)
sketch9.addGeometry(Part.LineSegment(App.Vector(-6.3, 0.6, 0), App.Vector(-6.3, 24.8, 0)), True)  # axis
sketch9.addConstraint(Sketcher.Constraint("Coincident", 0, 1, 1, 1))
sketch9.addConstraint(Sketcher.Constraint("Coincident", 1, 2, 0, 2))
sketch9.addConstraint(Sketcher.Constraint("Coincident", 2, 1, 3, 1))
sketch9.addConstraint(Sketcher.Constraint("Coincident", 3, 2, 2, 2))
sketch9.addConstraint(Sketcher.Constraint("Coincident", 4, 1, 5, 1))
sketch9.addConstraint(Sketcher.Constraint("Coincident", 5, 2, 4, 2))
sketch9.addConstraint(Sketcher.Constraint("Vertical", 0))
sketch9.addConstraint(Sketcher.Constraint("Vertical", 2))
sketch9.addConstraint(Sketcher.Constraint("Vertical", 4))
sketch9.addConstraint(Sketcher.Constraint("Vertical", 6))
sketch9.addConstraint(Sketcher.Constraint("Coincident", 6, 1, 1, 2))
sketch9.addConstraint(Sketcher.Constraint("Coincident", 6, 2, 4, 1))
sketch9.addConstraint(Sketcher.Constraint("Equal", 1, 3))
sketch9.addConstraint(Sketcher.Constraint("Equal", 3, 5))
sketch9.addConstraint(Sketcher.Constraint("Vertical", 1, 3, 3, 3))
sketch9.addConstraint(Sketcher.Constraint("Vertical", 3, 3, 5, 3))
sketch9.addConstraint(Sketcher.Constraint("Vertical", 5, 3, 0, 1))
sketch9.addConstraint(Sketcher.Constraint("Vertical", 1, 2, 2, 1))
sketch9.addConstraint(Sketcher.Constraint("Radius", 1, Q("0.125 in")))
sketch9.addConstraint(Sketcher.Constraint("DistanceY", 6, 1, 6, 2, Q("0.95 in")))
sketch9.addConstraint(Sketcher.Constraint("DistanceX", 1, 3, -1, 1, Q("0.25 in")))
sketch9.addConstraint(Sketcher.Constraint("DistanceY", -1, 1, 1, 3, Q("0.15 in")))
sketch9.addConstraint(Sketcher.Constraint("DistanceY", -1, 1, 3, 3, Q("12.627645 mm")))
sketch9.setExpression("Constraints[18]", "Params.sketch9_radius")
sketch9.setExpression("Constraints[19]", "Params.sketch9_height")
groove8 = body.newObject("PartDesign::Groove", "Groove007")
groove8.Profile = sketch9
groove8.ReferenceAxis = (sketch9, ["Axis0"])
groove8.setExpression("Angle", "Params.groove8_angle")

# Sketch on YZ plane
sketch10 = body.newObject("Sketcher::SketchObject", "Sketch009")
sketch10.AttachmentSupport = (doc.getObject("YZ_Plane"), [""])
sketch10.MapMode = "FlatFace"
sketch10.AttachmentOffset = App.Placement(App.Vector(0, 0, -0.5 * 25.4), App.Rotation())
sketch10.addGeometry(Part.ArcOfCircle(Part.Circle(App.Vector(6.3, 3.8, 0), App.Vector(0, 0, 1), 3.2), math.radians(-90), math.radians(90)), False)
sketch10.addGeometry(Part.LineSegment(App.Vector(6.3, 0.6, 0), App.Vector(6.3, 7, 0)), False)
sketch10.addGeometry(Part.ArcOfCircle(Part.Circle(App.Vector(6.3, 12.6, 0), App.Vector(0, 0, 1), 3.2), math.radians(-90), math.radians(90)), False)
sketch10.addGeometry(Part.LineSegment(App.Vector(6.3, 9.5, 0), App.Vector(6.3, 15.8, 0)), False)
sketch10.addGeometry(Part.LineSegment(App.Vector(6.3, 18.4, 0), App.Vector(6.3, 24.8, 0)), False)
sketch10.addGeometry(Part.ArcOfCircle(Part.Circle(App.Vector(6.3, 21.6, 0), App.Vector(0, 0, 1), 3.2), math.radians(-90), math.radians(90)), False)
sketch10.addGeometry(Part.LineSegment(App.Vector(6.3, 0.6, 0), App.Vector(6.3, 24.8, 0)), True)  # axis
sketch10.addConstraint(Sketcher.Constraint("Coincident", 0, 1, 1, 1))
sketch10.addConstraint(Sketcher.Constraint("Coincident", 1, 2, 0, 2))
sketch10.addConstraint(Sketcher.Constraint("Coincident", 2, 1, 3, 1))
sketch10.addConstraint(Sketcher.Constraint("Coincident", 3, 2, 2, 2))
sketch10.addConstraint(Sketcher.Constraint("Coincident", 4, 1, 5, 1))
sketch10.addConstraint(Sketcher.Constraint("Coincident", 5, 2, 4, 2))
sketch10.addConstraint(Sketcher.Constraint("Vertical", 1))
sketch10.addConstraint(Sketcher.Constraint("Vertical", 3))
sketch10.addConstraint(Sketcher.Constraint("Vertical", 4))
sketch10.addConstraint(Sketcher.Constraint("Vertical", 6))
sketch10.addConstraint(Sketcher.Constraint("Coincident", 6, 1, 0, 1))
sketch10.addConstraint(Sketcher.Constraint("Coincident", 6, 2, 5, 2))
sketch10.addConstraint(Sketcher.Constraint("Equal", 0, 2))
sketch10.addConstraint(Sketcher.Constraint("Equal", 2, 5))
sketch10.addConstraint(Sketcher.Constraint("Vertical", 0, 3, 2, 3))
sketch10.addConstraint(Sketcher.Constraint("Vertical", 2, 3, 5, 3))
sketch10.addConstraint(Sketcher.Constraint("Vertical", 5, 3, 0, 1))
sketch10.addConstraint(Sketcher.Constraint("Vertical", 1, 2, 2, 1))
sketch10.addConstraint(Sketcher.Constraint("Radius", 0, Q("0.125 in")))
sketch10.addConstraint(Sketcher.Constraint("DistanceY", 6, 1, 6, 2, Q("0.95 in")))
sketch10.addConstraint(Sketcher.Constraint("DistanceX", -1, 1, 0, 3, Q("0.25 in")))
sketch10.addConstraint(Sketcher.Constraint("DistanceY", -1, 1, 0, 3, Q("0.15 in")))
sketch10.addConstraint(Sketcher.Constraint("DistanceY", -1, 1, 2, 3, Q("12.627645 mm")))
sketch10.setExpression("Constraints[18]", "Params.sketch10_radius")
sketch10.setExpression("Constraints[19]", "Params.sketch10_height")
groove9 = body.newObject("PartDesign::Groove", "Groove008")
groove9.Profile = sketch10
groove9.ReferenceAxis = (sketch10, ["Axis0"])
groove9.setExpression("Angle", "Params.groove9_angle")

doc.recompute()
